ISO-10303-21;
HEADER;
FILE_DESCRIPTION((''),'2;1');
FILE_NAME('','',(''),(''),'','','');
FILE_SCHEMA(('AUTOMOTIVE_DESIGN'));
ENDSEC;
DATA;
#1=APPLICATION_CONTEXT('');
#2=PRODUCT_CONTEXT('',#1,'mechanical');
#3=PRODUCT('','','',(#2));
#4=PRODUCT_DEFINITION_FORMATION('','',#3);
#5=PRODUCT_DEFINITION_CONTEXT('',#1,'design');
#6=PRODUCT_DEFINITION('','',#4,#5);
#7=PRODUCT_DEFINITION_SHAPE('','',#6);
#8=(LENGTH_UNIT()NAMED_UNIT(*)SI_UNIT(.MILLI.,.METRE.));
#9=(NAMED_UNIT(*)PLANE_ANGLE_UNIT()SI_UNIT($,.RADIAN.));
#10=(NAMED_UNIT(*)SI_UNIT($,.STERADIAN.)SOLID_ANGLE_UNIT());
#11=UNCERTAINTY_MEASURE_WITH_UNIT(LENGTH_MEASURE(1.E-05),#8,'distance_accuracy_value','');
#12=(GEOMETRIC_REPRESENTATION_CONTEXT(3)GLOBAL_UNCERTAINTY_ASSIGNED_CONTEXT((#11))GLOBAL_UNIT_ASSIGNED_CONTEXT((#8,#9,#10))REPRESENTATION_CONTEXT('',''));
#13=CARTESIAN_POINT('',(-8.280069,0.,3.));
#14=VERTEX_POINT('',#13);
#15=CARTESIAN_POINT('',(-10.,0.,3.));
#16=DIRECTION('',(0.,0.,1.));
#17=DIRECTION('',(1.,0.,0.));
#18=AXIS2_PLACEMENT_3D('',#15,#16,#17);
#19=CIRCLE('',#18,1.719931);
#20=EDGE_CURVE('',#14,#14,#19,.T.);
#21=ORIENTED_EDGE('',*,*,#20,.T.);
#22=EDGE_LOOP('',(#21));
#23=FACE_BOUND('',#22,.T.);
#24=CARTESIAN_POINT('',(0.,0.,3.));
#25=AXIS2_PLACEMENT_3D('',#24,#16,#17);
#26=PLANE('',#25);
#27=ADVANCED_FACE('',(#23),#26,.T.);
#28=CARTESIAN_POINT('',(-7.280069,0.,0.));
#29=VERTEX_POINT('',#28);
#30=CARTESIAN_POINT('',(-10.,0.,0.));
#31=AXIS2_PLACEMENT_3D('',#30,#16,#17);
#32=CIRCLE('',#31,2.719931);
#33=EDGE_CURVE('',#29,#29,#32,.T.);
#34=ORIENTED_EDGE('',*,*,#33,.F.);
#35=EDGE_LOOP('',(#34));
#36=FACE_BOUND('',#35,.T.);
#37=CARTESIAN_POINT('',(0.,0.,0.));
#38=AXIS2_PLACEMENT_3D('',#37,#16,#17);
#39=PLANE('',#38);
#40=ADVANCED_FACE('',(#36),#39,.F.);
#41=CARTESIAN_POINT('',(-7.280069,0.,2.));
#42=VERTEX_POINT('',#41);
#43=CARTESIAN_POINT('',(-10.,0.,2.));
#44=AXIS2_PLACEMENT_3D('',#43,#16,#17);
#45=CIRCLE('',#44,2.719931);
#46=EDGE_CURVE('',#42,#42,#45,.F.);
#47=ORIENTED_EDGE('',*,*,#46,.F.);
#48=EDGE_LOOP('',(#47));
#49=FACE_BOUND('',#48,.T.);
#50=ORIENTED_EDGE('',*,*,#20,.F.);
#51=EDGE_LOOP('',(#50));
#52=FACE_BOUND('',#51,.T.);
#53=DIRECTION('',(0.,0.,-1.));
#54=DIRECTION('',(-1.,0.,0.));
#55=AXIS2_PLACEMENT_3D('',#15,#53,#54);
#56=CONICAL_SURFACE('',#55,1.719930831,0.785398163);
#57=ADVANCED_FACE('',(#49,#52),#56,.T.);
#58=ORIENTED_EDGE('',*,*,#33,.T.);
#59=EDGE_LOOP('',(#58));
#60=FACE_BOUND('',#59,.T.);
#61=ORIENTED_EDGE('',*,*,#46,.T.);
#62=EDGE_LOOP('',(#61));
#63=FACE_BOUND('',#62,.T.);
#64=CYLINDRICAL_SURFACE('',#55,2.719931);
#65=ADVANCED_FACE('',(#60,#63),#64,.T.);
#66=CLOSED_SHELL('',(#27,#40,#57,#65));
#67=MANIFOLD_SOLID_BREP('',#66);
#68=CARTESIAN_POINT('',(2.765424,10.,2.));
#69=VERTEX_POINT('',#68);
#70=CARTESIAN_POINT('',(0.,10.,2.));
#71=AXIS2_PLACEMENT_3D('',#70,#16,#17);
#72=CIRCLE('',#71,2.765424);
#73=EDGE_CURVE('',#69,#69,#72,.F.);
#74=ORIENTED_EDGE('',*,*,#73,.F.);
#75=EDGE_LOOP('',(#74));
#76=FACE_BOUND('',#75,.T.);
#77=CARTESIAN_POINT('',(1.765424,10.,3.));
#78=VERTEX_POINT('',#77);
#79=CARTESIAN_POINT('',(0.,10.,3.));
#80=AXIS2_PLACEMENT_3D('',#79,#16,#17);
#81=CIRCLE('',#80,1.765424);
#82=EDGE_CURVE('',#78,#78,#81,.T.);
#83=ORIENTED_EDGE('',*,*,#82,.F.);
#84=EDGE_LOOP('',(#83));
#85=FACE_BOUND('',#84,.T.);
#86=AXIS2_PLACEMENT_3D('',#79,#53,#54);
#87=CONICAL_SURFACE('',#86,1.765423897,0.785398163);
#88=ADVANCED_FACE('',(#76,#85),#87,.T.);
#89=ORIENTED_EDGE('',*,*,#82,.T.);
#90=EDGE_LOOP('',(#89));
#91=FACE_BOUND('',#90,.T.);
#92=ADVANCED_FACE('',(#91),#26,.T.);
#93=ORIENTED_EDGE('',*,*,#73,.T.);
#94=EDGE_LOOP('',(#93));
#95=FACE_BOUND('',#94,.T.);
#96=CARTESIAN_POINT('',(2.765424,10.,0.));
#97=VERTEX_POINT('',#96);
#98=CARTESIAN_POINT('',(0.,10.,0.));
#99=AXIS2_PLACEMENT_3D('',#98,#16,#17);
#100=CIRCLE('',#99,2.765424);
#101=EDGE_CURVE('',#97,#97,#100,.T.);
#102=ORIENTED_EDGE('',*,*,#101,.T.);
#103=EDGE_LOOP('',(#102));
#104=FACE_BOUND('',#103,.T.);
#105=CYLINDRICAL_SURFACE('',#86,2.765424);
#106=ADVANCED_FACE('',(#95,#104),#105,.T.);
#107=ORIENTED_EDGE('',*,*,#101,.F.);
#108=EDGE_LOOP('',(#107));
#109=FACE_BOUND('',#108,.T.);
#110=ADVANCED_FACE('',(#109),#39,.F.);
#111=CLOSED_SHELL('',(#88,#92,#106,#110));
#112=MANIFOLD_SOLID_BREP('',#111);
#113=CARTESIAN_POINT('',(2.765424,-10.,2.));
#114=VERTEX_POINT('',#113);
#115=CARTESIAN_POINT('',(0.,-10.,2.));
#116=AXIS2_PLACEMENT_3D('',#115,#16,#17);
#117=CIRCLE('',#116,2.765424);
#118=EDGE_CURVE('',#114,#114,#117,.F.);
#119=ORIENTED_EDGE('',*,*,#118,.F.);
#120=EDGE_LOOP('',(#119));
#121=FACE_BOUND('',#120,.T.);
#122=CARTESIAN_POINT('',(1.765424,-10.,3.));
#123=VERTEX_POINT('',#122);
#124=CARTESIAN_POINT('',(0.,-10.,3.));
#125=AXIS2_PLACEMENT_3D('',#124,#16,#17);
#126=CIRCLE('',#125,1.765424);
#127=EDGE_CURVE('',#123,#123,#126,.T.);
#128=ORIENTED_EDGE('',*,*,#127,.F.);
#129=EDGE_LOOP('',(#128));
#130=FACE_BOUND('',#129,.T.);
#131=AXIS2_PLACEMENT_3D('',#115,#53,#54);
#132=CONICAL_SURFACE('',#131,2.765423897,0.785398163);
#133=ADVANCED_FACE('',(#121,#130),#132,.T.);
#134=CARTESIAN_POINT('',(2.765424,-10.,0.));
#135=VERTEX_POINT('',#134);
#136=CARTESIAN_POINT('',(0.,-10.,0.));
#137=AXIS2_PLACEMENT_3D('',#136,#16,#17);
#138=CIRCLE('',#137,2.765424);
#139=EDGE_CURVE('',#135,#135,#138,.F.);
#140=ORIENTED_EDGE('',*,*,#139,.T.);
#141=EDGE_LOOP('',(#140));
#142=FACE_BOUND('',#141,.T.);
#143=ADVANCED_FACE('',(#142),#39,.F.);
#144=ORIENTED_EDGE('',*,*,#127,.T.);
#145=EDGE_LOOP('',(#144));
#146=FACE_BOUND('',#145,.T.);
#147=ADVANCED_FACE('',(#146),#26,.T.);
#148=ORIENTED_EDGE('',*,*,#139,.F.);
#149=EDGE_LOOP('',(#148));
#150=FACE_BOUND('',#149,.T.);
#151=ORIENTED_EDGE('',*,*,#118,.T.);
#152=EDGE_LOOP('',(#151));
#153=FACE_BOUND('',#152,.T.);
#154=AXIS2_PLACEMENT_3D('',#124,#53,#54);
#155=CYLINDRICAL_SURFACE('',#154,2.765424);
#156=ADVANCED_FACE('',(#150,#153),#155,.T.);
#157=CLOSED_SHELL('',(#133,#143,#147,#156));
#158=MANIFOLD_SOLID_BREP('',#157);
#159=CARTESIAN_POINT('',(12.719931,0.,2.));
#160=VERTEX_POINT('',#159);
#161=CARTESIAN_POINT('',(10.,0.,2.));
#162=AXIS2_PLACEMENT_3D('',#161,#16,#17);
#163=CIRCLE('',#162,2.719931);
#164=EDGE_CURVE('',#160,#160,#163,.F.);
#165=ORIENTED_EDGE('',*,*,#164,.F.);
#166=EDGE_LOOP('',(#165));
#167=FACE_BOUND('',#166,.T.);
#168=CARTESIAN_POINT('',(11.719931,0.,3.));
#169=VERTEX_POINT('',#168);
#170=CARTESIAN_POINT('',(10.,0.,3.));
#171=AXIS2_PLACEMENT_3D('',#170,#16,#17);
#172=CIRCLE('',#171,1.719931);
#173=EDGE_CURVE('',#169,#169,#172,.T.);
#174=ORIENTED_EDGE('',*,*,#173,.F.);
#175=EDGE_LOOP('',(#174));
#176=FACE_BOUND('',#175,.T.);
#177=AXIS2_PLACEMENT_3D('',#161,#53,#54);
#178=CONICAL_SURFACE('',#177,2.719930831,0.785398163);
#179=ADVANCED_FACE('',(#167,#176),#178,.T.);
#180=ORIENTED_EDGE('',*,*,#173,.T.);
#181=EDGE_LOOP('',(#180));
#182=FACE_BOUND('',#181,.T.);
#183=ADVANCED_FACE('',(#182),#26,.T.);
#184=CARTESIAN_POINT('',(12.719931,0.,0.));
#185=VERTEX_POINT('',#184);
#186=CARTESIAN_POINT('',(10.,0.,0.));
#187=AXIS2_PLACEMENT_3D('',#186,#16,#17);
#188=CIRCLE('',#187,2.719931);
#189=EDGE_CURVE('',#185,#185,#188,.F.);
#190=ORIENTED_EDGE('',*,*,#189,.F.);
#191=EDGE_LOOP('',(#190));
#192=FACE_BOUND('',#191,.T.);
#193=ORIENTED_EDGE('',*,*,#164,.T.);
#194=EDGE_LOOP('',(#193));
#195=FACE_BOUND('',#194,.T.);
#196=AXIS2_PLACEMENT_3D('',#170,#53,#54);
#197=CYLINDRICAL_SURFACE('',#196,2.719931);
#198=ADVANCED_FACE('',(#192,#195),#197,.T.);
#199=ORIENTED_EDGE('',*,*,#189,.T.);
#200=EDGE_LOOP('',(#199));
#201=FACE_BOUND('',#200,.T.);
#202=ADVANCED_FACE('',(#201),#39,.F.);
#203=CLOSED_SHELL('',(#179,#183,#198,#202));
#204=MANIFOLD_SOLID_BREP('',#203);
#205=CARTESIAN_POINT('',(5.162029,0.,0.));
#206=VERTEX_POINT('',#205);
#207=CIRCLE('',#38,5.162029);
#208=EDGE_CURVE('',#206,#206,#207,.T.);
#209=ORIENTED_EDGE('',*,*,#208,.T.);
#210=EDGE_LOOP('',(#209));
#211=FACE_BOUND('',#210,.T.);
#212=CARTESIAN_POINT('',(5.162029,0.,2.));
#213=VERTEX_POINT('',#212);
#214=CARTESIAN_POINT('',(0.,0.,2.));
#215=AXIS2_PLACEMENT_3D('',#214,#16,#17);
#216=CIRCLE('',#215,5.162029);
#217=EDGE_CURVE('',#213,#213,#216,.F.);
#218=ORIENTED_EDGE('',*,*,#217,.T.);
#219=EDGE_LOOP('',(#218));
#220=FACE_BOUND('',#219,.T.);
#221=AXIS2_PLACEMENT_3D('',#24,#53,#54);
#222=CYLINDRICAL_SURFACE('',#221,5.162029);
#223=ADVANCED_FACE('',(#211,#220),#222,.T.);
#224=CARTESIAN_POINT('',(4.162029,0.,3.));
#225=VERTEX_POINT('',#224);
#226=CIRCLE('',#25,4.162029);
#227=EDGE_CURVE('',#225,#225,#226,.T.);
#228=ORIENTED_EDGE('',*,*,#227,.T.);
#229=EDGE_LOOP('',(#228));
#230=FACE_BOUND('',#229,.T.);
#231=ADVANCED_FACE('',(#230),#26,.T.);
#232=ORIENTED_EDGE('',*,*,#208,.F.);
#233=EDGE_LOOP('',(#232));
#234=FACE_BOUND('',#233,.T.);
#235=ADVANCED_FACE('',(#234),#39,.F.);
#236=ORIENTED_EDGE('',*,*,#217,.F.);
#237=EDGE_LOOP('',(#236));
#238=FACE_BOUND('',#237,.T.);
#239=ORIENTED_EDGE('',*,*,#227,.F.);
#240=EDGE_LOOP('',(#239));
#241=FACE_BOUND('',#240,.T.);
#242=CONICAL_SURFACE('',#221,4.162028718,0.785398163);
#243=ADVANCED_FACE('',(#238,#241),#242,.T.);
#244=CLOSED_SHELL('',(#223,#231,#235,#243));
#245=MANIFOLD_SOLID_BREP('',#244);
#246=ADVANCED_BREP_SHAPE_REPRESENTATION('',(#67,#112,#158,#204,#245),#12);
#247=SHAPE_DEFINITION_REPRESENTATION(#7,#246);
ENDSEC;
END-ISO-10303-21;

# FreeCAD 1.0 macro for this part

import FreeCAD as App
import Part
import Sketcher
from FreeCAD import Vector


def edges_at(feature, points):
    """Names of the edges that pass closest to the given points."""
    edges = feature.Shape.Edges
    near = lambda p: min(range(len(edges)), key=lambda i: edges[i].distToShape(Part.Vertex(*p))[0])
    return sorted({f"Edge{near(p) + 1}" for p in points})

doc = App.newDocument("Part")
body = doc.addObject("PartDesign::Body", "Body")

# Sketch on XY plane
sketch1 = body.newObject("Sketcher::SketchObject", "Sketch")
sketch1.AttachmentSupport = (doc.getObject("XY_Plane"), [""])
sketch1.MapMode = "FlatFace"
sketch1.addGeometry(Part.Circle(Vector(0, 0, 0), Vector(0, 0, 1), 5.162029), False)
sketch1.addConstraint([
    Sketcher.Constraint("Coincident", 0, 3, -1, 1),
    Sketcher.Constraint("Diameter", 0, 10.324057),
])
pad1 = body.newObject("PartDesign::Pad", "Pad")
pad1.Profile = sketch1
pad1.Length = 3
doc.recompute()

chamfer = body.newObject("PartDesign::Chamfer", "Chamfer")
chamfer.Base = (pad1, edges_at(pad1, [(-5.162, 0, 3)]))
chamfer.Size = 1
body2 = doc.addObject("PartDesign::Body", "Body001")

# Sketch on XY plane
sketch2 = body2.newObject("Sketcher::SketchObject", "Sketch001")
sketch2.AttachmentSupport = (doc.getObject("XY_Plane001"), [""])
sketch2.MapMode = "FlatFace"
sketch2.addGeometry(Part.Circle(Vector(0, 10, 0), Vector(0, 0, 1), 2.765424), False)
sketch2.addConstraint([
    Sketcher.Constraint("PointOnObject", 0, 3, -2),
    Sketcher.Constraint("DistanceY", -1, 1, 0, 3, 10.0),
    Sketcher.Constraint("Diameter", 0, 5.530848),
])
pad2 = body2.newObject("PartDesign::Pad", "Pad001")
pad2.Profile = sketch2
pad2.Length = 3
doc.recompute()

chamfer2 = body2.newObject("PartDesign::Chamfer", "Chamfer001")
chamfer2.Base = (pad2, edges_at(pad2, [(-2.765, 10, 3)]))
chamfer2.Size = 1
body3 = doc.addObject("PartDesign::Body", "Body002")

# Sketch on XY plane
sketch3 = body3.newObject("Sketcher::SketchObject", "Sketch002")
sketch3.AttachmentSupport = (doc.getObject("XY_Plane002"), [""])
sketch3.MapMode = "FlatFace"
sketch3.addGeometry(Part.Circle(Vector(0, -10, 0), Vector(0, 0, 1), 2.765424), False)
sketch3.addConstraint([
    Sketcher.Constraint("PointOnObject", 0, 3, -2),
    Sketcher.Constraint("DistanceY", 0, 3, -1, 1, 10.0),
    Sketcher.Constraint("Diameter", 0, 5.530848),
])
pad3 = body3.newObject("PartDesign::Pad", "Pad002")
pad3.Profile = sketch3
pad3.Length = 3
doc.recompute()

chamfer3 = body3.newObject("PartDesign::Chamfer", "Chamfer002")
chamfer3.Base = (pad3, edges_at(pad3, [(-2.765, -10, 3)]))
chamfer3.Size = 1
body4 = doc.addObject("PartDesign::Body", "Body003")

# Sketch on XY plane
sketch4 = body4.newObject("Sketcher::SketchObject", "Sketch003")
sketch4.AttachmentSupport = (doc.getObject("XY_Plane003"), [""])
sketch4.MapMode = "FlatFace"
sketch4.addGeometry(Part.Circle(Vector(-10, 0, 0), Vector(0, 0, 1), 2.719931), False)
sketch4.addConstraint([
    Sketcher.Constraint("PointOnObject", 0, 3, -1),
    Sketcher.Constraint("DistanceX", 0, 3, -1, 1, 10.0),
    Sketcher.Constraint("Diameter", 0, 5.439862),
])
pad4 = body4.newObject("PartDesign::Pad", "Pad003")
pad4.Profile = sketch4
pad4.Length = 3
doc.recompute()

chamfer4 = body4.newObject("PartDesign::Chamfer", "Chamfer003")
chamfer4.Base = (pad4, edges_at(pad4, [(-12.72, 0, 3)]))
chamfer4.Size = 1
body5 = doc.addObject("PartDesign::Body", "Body004")

# Sketch on XY plane
sketch5 = body5.newObject("Sketcher::SketchObject", "Sketch004")
sketch5.AttachmentSupport = (doc.getObject("XY_Plane004"), [""])
sketch5.MapMode = "FlatFace"
sketch5.addGeometry(Part.Circle(Vector(10, 0, 0), Vector(0, 0, 1), 2.719931), False)
sketch5.addConstraint([
    Sketcher.Constraint("PointOnObject", 0, 3, -1),
    Sketcher.Constraint("DistanceX", -1, 1, 0, 3, 10.0),
    Sketcher.Constraint("Diameter", 0, 5.439862),
])
pad5 = body5.newObject("PartDesign::Pad", "Pad004")
pad5.Profile = sketch5
pad5.Length = 3
doc.recompute()

chamfer5 = body5.newObject("PartDesign::Chamfer", "Chamfer004")
chamfer5.Base = (pad5, edges_at(pad5, [(7.28, 0, 3)]))
chamfer5.Size = 1

doc.recompute()
